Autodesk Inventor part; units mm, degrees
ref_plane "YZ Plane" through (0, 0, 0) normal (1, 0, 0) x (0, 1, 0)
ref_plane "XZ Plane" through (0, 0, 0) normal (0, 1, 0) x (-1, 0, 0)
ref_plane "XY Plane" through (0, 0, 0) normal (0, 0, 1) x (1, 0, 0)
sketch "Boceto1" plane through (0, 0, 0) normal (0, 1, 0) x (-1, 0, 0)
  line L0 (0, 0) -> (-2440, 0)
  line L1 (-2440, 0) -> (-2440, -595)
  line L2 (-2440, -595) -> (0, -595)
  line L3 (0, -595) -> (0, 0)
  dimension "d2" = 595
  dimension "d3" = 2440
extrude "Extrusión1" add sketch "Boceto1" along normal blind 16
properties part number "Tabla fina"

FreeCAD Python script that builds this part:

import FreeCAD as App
import Part
import Sketcher

doc = App.newDocument("Part")
body = doc.addObject("PartDesign::Body", "Body")

sketch1 = doc.addObject("Sketcher::SketchObject", "Sketch")
body.addObject(sketch1)
sketch1.AttachmentSupport = (doc.XZ_Plane, [""])
sketch1.MapMode = "FlatFace"
sketch1.addGeometry([
    Part.LineSegment(App.Vector(0, -595, 0), App.Vector(0, 0, 0)),
    Part.LineSegment(App.Vector(0, 0, 0), App.Vector(2440, 0, 0)),
    Part.LineSegment(App.Vector(2440, 0, 0), App.Vector(2440, -595, 0)),
    Part.LineSegment(App.Vector(2440, -595, 0), App.Vector(0, -595, 0)),
], False)
sketch1.addConstraint([
    Sketcher.Constraint("Coincident", 0, 2, 1, 1),
    Sketcher.Constraint("Coincident", 1, 2, 2, 1),
    Sketcher.Constraint("Coincident", 2, 2, 3, 1),
    Sketcher.Constraint("Coincident", 3, 2, 0, 1),
    Sketcher.Constraint("Vertical", 0),
    Sketcher.Constraint("Horizontal", 1),
    Sketcher.Constraint("Vertical", 2),
    Sketcher.Constraint("Horizontal", 3),
    Sketcher.Constraint("Coincident", 0, 2, -1, 1),
    Sketcher.Constraint("DistanceX", 1, 1, 1, 2, 2440.0),
    Sketcher.Constraint("DistanceY", 0, 1, 0, 2, 595.0),
])
pad1 = doc.addObject("PartDesign::Pad", "Pad")
body.addObject(pad1)
pad1.Profile = sketch1
pad1.Length = 16
pad1.Reversed = True

doc.recompute()
